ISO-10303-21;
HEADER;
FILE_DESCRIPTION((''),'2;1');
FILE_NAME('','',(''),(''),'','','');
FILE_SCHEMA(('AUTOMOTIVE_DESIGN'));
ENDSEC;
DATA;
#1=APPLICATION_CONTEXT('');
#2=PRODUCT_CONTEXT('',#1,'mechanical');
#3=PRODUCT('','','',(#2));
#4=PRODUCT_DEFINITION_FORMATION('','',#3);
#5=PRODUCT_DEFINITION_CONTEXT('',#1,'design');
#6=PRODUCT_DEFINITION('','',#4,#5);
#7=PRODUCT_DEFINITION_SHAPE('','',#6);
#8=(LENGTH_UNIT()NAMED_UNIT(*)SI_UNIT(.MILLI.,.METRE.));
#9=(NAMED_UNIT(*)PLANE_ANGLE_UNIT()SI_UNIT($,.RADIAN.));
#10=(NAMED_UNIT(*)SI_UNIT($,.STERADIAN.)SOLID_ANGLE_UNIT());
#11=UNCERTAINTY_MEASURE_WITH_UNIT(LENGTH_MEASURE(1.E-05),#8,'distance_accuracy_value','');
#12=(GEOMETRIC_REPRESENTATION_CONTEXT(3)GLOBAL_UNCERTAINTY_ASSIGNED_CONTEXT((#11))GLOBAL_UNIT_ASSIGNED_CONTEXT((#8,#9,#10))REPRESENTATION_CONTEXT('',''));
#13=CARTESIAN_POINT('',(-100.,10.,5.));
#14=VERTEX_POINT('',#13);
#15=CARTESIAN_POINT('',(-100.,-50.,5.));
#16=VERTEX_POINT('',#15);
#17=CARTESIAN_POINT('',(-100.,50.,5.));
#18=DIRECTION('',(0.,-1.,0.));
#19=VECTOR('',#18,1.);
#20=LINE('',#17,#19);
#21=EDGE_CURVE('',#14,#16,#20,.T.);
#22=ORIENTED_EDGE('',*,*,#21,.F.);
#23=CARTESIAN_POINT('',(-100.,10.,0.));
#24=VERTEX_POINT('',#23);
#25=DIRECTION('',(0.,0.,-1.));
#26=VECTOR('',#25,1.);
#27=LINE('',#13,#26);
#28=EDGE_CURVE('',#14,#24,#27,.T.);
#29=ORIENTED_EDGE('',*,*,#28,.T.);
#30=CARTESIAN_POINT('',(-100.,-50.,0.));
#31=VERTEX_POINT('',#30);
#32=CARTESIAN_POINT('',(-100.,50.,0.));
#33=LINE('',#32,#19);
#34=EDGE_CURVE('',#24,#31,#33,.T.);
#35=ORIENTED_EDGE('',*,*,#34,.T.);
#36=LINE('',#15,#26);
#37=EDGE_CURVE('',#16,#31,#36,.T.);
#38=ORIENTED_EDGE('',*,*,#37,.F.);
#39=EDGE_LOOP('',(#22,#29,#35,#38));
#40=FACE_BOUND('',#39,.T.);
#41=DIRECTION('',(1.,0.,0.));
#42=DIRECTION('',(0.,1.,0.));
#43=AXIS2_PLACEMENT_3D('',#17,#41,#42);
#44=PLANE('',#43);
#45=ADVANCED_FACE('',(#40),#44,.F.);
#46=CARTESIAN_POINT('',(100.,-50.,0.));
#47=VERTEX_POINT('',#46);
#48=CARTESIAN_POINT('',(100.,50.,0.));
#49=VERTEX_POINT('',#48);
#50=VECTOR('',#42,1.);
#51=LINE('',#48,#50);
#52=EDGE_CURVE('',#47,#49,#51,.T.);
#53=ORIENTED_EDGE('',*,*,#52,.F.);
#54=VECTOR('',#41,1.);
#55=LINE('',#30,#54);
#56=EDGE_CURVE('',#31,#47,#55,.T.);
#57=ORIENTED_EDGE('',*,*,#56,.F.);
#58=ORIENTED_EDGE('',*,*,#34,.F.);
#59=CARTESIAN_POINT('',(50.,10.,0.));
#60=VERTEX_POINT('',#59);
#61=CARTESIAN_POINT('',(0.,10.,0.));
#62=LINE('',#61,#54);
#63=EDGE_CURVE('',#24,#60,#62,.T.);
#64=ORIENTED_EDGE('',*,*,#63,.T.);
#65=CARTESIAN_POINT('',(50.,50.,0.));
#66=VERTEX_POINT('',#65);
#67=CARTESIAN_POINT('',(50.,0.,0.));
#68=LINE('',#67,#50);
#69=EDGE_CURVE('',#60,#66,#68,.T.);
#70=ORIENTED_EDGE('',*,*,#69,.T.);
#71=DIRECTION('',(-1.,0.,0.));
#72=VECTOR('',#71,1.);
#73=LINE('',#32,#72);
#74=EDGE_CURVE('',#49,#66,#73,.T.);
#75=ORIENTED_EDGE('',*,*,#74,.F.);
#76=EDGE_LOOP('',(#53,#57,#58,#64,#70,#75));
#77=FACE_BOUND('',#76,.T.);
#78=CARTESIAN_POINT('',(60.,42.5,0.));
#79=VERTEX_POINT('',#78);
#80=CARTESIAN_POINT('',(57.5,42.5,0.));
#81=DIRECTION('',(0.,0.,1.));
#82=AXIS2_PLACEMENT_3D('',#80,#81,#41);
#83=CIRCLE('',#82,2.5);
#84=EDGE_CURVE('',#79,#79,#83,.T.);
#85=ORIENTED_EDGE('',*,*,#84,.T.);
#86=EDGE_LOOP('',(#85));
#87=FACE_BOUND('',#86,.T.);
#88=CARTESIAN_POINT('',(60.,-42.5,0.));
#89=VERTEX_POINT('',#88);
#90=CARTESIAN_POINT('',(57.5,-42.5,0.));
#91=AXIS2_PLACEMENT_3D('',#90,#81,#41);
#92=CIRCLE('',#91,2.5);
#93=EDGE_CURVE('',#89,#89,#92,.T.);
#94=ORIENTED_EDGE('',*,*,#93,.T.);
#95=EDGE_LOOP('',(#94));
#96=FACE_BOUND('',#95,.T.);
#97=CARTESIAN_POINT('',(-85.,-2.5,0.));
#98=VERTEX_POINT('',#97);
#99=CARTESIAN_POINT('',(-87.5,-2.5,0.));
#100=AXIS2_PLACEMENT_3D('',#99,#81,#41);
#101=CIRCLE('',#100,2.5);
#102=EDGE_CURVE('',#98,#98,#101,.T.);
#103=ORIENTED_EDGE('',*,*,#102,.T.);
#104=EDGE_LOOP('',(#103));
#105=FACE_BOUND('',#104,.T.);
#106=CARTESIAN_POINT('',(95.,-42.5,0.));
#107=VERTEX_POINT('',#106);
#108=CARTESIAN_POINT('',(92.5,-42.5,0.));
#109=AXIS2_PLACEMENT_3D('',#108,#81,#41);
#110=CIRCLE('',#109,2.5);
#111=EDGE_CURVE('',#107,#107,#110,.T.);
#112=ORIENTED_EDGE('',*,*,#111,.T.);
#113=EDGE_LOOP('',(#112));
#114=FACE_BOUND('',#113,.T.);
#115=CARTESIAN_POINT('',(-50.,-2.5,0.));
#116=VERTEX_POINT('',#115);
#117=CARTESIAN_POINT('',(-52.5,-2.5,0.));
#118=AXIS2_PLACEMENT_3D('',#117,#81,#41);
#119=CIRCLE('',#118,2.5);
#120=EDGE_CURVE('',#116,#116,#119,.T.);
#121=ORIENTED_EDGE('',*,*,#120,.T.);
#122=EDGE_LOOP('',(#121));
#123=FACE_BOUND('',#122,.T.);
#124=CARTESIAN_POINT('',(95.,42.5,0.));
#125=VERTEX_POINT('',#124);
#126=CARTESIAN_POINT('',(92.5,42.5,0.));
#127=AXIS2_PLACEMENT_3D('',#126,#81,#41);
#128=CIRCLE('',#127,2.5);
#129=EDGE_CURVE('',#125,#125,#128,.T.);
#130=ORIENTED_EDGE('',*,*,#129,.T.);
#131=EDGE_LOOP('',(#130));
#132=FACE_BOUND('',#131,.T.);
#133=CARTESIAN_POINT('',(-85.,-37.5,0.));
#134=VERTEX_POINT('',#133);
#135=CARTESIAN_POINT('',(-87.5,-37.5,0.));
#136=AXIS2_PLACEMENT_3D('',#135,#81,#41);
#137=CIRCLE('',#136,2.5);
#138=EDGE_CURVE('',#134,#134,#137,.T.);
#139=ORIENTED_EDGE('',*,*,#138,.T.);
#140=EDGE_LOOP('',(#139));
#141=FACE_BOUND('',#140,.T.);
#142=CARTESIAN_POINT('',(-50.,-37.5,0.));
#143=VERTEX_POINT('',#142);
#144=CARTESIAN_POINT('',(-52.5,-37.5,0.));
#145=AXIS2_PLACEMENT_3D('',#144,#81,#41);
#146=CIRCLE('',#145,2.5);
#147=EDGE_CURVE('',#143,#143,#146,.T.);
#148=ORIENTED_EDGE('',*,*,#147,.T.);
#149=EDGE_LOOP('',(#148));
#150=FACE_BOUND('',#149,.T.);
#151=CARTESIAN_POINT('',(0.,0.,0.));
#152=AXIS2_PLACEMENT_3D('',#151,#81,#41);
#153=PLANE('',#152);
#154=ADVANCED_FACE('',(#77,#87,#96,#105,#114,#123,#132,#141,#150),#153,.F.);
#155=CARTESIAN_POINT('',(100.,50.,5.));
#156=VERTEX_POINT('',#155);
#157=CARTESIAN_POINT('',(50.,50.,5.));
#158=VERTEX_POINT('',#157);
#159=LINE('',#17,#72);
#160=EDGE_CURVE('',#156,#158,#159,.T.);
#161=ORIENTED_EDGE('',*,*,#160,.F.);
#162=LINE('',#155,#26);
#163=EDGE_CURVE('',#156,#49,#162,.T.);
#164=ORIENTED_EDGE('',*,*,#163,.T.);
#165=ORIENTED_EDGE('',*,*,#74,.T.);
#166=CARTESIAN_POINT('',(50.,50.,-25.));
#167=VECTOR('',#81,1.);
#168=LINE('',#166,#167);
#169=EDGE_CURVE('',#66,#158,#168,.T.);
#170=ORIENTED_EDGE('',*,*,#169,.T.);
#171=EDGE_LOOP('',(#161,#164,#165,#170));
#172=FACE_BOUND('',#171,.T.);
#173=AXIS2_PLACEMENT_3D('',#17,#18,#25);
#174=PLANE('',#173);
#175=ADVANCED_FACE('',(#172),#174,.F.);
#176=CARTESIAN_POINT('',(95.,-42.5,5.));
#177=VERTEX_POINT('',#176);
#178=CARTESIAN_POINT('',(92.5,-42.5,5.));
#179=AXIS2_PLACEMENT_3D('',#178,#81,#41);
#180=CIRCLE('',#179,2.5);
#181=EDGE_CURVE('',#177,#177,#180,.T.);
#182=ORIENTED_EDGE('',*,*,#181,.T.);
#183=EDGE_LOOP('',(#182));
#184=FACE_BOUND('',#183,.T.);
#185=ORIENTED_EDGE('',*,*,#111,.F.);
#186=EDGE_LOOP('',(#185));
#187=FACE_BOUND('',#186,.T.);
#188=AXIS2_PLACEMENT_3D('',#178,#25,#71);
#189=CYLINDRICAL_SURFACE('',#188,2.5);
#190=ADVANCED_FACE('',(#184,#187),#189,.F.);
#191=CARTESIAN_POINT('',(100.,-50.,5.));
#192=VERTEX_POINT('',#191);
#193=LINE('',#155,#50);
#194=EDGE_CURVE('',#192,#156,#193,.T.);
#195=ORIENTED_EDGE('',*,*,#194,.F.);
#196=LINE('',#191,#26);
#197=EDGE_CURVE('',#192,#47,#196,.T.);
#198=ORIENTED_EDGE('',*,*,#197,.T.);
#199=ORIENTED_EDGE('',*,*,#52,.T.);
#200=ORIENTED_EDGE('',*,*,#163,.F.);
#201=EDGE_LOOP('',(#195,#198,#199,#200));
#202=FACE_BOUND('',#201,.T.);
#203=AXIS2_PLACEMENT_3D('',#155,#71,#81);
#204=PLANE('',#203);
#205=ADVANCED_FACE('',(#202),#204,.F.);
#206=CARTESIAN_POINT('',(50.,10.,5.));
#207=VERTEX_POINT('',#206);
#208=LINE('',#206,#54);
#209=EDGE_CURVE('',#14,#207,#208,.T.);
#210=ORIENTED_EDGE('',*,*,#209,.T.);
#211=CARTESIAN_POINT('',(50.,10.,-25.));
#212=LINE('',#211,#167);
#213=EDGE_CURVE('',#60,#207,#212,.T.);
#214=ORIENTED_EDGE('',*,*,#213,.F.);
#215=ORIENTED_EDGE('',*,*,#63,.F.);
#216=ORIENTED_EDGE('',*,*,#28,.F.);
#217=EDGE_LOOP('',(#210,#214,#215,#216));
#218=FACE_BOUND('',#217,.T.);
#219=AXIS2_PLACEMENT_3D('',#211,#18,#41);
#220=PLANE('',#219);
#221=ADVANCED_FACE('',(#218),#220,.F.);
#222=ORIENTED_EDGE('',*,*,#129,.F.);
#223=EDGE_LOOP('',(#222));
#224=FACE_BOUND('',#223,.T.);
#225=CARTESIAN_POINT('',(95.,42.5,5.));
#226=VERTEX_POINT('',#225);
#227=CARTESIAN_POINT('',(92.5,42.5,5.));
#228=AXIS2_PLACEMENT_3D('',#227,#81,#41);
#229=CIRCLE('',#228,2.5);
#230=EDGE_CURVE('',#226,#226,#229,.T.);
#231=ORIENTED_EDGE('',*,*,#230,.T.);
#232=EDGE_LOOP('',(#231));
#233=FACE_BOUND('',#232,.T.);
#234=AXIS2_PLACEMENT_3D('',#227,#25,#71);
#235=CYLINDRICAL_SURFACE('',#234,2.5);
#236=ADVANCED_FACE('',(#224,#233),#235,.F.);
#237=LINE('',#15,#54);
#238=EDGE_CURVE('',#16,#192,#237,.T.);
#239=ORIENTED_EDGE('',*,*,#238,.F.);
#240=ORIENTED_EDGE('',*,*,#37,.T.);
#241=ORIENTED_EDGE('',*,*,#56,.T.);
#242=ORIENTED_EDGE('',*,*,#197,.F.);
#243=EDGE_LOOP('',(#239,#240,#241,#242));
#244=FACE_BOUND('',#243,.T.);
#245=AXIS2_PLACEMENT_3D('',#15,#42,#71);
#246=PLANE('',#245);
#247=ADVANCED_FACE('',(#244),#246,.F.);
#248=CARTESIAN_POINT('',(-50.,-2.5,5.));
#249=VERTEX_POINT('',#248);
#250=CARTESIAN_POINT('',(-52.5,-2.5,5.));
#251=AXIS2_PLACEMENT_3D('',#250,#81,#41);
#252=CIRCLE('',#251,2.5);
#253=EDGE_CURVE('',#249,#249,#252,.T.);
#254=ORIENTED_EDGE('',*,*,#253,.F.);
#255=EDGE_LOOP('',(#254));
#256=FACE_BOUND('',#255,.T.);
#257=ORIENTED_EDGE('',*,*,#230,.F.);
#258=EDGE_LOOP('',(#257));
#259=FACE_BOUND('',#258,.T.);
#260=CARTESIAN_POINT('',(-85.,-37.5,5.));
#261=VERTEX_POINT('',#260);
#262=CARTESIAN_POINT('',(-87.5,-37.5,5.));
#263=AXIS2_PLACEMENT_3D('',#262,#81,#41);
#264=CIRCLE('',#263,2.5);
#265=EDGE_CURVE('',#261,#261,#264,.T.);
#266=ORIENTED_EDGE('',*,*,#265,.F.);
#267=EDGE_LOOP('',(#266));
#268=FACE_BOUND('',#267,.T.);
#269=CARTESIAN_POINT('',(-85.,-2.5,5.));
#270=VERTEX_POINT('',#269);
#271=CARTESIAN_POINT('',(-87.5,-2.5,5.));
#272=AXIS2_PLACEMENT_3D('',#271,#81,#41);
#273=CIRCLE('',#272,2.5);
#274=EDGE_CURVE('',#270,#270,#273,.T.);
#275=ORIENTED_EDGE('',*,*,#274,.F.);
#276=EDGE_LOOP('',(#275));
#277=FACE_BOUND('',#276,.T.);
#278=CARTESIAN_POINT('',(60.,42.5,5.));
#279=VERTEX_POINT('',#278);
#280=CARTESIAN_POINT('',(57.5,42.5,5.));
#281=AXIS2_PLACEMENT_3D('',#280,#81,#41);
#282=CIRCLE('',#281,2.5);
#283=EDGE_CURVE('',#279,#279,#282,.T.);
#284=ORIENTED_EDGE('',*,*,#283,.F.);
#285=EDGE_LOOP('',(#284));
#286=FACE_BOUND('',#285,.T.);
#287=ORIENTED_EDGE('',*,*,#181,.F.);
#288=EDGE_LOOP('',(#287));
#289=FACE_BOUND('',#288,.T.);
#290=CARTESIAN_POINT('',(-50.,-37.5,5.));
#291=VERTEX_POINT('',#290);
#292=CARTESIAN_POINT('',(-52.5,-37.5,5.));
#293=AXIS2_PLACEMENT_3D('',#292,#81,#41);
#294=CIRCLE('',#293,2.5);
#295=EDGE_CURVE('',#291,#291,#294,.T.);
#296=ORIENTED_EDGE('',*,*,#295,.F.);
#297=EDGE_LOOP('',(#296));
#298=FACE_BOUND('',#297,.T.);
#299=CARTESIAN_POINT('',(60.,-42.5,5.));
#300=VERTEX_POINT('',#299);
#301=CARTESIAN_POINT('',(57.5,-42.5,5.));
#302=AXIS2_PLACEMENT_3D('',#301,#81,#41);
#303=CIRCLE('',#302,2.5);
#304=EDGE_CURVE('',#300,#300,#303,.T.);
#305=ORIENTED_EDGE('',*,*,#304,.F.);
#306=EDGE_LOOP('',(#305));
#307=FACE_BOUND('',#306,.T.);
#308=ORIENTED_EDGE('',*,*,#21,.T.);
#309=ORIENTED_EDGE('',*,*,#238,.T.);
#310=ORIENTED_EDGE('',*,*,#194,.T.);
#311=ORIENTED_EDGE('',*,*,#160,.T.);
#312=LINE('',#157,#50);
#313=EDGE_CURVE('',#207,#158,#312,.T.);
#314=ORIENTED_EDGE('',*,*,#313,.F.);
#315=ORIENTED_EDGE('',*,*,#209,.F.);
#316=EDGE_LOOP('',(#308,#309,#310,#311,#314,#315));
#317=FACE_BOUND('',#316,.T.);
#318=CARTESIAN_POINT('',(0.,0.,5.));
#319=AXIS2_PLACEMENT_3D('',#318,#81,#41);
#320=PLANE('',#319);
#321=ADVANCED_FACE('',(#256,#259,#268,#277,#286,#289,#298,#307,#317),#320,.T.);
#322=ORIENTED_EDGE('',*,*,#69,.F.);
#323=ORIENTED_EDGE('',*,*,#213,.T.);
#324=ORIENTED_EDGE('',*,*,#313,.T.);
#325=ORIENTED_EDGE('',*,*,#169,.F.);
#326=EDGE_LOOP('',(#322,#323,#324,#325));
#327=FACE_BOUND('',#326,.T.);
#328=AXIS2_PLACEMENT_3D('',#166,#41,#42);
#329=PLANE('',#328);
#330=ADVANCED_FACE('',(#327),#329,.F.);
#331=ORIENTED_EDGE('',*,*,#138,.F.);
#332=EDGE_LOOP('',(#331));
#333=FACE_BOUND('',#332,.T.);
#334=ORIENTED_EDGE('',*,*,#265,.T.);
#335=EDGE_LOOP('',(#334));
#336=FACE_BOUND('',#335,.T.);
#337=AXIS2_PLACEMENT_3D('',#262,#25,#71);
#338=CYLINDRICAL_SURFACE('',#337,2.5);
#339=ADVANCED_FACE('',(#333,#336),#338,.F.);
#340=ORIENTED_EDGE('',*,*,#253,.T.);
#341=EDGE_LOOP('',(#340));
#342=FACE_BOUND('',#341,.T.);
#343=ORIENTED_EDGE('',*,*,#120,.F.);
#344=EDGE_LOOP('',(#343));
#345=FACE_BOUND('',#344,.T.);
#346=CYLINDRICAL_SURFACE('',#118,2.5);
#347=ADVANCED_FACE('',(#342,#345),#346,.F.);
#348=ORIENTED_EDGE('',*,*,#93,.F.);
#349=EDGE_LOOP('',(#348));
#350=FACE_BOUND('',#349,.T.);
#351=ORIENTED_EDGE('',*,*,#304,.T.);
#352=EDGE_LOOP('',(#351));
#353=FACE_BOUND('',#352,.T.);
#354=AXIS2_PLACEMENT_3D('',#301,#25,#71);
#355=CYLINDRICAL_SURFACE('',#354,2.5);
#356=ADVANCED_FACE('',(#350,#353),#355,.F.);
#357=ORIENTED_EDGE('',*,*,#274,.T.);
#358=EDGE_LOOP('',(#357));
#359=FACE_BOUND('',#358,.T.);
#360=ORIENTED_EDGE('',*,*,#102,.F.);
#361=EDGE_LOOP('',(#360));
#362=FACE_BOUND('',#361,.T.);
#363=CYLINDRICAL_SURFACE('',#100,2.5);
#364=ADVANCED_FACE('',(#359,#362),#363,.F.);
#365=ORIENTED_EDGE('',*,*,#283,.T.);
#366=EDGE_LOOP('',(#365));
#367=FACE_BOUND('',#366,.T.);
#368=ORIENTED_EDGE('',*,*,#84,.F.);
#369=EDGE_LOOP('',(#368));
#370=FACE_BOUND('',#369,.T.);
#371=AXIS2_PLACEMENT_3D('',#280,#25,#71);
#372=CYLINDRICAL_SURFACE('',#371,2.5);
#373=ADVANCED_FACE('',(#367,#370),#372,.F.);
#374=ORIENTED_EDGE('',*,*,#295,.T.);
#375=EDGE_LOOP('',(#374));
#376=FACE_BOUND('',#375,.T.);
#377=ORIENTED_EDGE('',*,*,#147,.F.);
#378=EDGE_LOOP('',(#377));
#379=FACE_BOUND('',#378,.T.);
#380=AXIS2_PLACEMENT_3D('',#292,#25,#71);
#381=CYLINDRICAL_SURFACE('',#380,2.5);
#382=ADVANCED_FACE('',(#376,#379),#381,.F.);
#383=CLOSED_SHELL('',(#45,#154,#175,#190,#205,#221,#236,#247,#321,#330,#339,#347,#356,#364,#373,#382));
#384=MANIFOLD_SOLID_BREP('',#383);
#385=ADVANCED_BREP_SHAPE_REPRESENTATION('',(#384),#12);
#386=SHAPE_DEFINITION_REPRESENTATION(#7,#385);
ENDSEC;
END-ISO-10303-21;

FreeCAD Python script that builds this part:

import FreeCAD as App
import Part
import Sketcher
Q = App.Units.Quantity


def add_polygon(sketch, points):
    """Adds a closed chain of lines whose ends are joined by coincident constraints."""
    first, n = sketch.GeometryCount, len(points)
    for a, b in zip(points, points[1:] + points[:1]):
        sketch.addGeometry(Part.LineSegment(App.Vector(*a, 0), App.Vector(*b, 0)), False)
    for i in range(n):
        sketch.addConstraint(Sketcher.Constraint("Coincident", first + i, 2, first + (i + 1) % n, 1))

doc = App.newDocument("Part")
body = doc.addObject("PartDesign::Body", "Body")

sketch1 = body.newObject("Sketcher::SketchObject", "Sketch")
sketch1.AttachmentSupport = (doc.getObject("XY_Plane"), [""])
sketch1.MapMode = "FlatFace"
add_polygon(sketch1, [(-100, 50), (-100, -50), (100, -50), (100, 50)])
sketch1.addGeometry(Part.Circle(App.Vector(-87.5, -37.5, 0), App.Vector(0, 0, 1), 2.5), False)
sketch1.addGeometry(Part.Circle(App.Vector(-52.5, -37.5, 0), App.Vector(0, 0, 1), 2.5), False)
sketch1.addGeometry(Part.Circle(App.Vector(57.5, -42.5, 0), App.Vector(0, 0, 1), 2.5), False)
sketch1.addGeometry(Part.Circle(App.Vector(92.5, -42.5, 0), App.Vector(0, 0, 1), 2.5), False)
sketch1.addGeometry(Part.Circle(App.Vector(-92.5, 42.5, 0), App.Vector(0, 0, 1), 2.5), False)
sketch1.addGeometry(Part.Circle(App.Vector(-57.5, 42.5, 0), App.Vector(0, 0, 1), 2.5), False)
sketch1.addGeometry(Part.Circle(App.Vector(57.5, 42.5, 0), App.Vector(0, 0, 1), 2.5), False)
sketch1.addGeometry(Part.Circle(App.Vector(92.5, 42.5, 0), App.Vector(0, 0, 1), 2.5), False)
sketch1.addConstraint([
    Sketcher.Constraint("Vertical", 0),
    Sketcher.Constraint("Horizontal", 1),
    Sketcher.Constraint("Vertical", 2),
    Sketcher.Constraint("Horizontal", 3),
    Sketcher.Constraint("Equal", 4, 5),
    Sketcher.Constraint("Equal", 5, 6),
    Sketcher.Constraint("Equal", 6, 7),
    Sketcher.Constraint("Equal", 7, 8),
    Sketcher.Constraint("Equal", 8, 9),
    Sketcher.Constraint("Equal", 9, 10),
    Sketcher.Constraint("Equal", 10, 11),
    Sketcher.Constraint("Symmetric", 7, 3, 8, 3, -1, 1),
    Sketcher.Constraint("Symmetric", 6, 3, 9, 3, -1, 1),
    Sketcher.Constraint("Symmetric", 0, 2, 2, 2, -1, 1),
    Sketcher.Constraint("Symmetric", 9, 3, 10, 3, -2),
    Sketcher.Constraint("Symmetric", 8, 3, 11, 3, -2),
    Sketcher.Constraint("Horizontal", 4, 3, 5, 3),
    Sketcher.Constraint("Horizontal", 6, 3, 7, 3),
    Sketcher.Constraint("Diameter", 4, Q("5 mm")),
    Sketcher.Constraint("DistanceX", 1, 1, 1, 2, Q("200 mm")),
    Sketcher.Constraint("DistanceY", 0, 2, 0, 1, Q("100 mm")),
    Sketcher.Constraint("DistanceX", 4, 3, 5, 3, Q("35 mm")),
    Sketcher.Constraint("DistanceX", 5, 3, 6, 3, Q("110 mm")),
    Sketcher.Constraint("DistanceY", 6, 3, 5, 3, Q("5 mm")),
    Sketcher.Constraint("DistanceX", 6, 3, 7, 3, Q("35 mm")),
    Sketcher.Constraint("DistanceX", 8, 3, 4, 3, Q("5 mm")),
    Sketcher.Constraint("DistanceY", 4, 3, 8, 3, Q("80 mm")),
])
pad1 = body.newObject("PartDesign::Pad", "Pad")
pad1.Profile = sketch1
pad1.Length = 5

sketch2 = body.newObject("Sketcher::SketchObject", "Sketch001")
sketch2.AttachmentSupport = (doc.getObject("XY_Plane"), [""])
sketch2.MapMode = "FlatFace"
sketch2.AttachmentOffset = App.Placement(App.Vector(0, 0, 5), App.Rotation())
sketch2.addGeometry([
    Part.Circle(App.Vector(-87.5, -2.5, 0), App.Vector(0, 0, 1), 2.5),
    Part.Circle(App.Vector(-52.5, -2.5, 0), App.Vector(0, 0, 1), 2.5),
    Part.Circle(App.Vector(-87.5, -37.5, 0), App.Vector(0, 0, 1), 2.5),
    Part.Circle(App.Vector(-52.5, -37.5, 0), App.Vector(0, 0, 1), 2.5),
], False)
sketch2.addConstraint([
    Sketcher.Constraint("Equal", 0, 1),
    Sketcher.Constraint("Equal", 1, 2),
    Sketcher.Constraint("Equal", 2, 3),
    Sketcher.Constraint("Horizontal", 0, 3, 1, 3),
    Sketcher.Constraint("Horizontal", 2, 3, 3, 3),
    Sketcher.Constraint("Vertical", 0, 3, 2, 3),
    Sketcher.Constraint("Vertical", 1, 3, 3, 3),
    Sketcher.Constraint("Diameter", 0, Q("5 mm")),
    Sketcher.Constraint("DistanceX", 0, 3, 1, 3, Q("35 mm")),
    Sketcher.Constraint("DistanceY", 2, 3, 0, 3, Q("35 mm")),
    Sketcher.Constraint("DistanceX", 0, 3, -1, 1, Q("87.5 mm")),
    Sketcher.Constraint("DistanceY", 0, 3, -1, 1, Q("2.5 mm")),
])
pocket1 = body.newObject("PartDesign::Pocket", "Pocket")
pocket1.Profile = sketch2
pocket1.Length = 5

sketch3 = body.newObject("Sketcher::SketchObject", "Sketch002")
sketch3.AttachmentSupport = (doc.getObject("XY_Plane"), [""])
sketch3.MapMode = "FlatFace"
sketch3.AttachmentOffset = App.Placement(App.Vector(0, 0, 5), App.Rotation())
add_polygon(sketch3, [(-100, 50), (-100, 10), (50, 10), (50, 50)])
sketch3.addConstraint([
    Sketcher.Constraint("Vertical", 0),
    Sketcher.Constraint("Horizontal", 1),
    Sketcher.Constraint("Vertical", 2),
    Sketcher.Constraint("Horizontal", 3),
    Sketcher.Constraint("DistanceX", 1, 1, 1, 2, Q("150 mm")),
    Sketcher.Constraint("DistanceY", 0, 2, 0, 1, Q("40 mm")),
    Sketcher.Constraint("DistanceX", 0, 2, -1, 1, Q("100 mm")),
    Sketcher.Constraint("DistanceY", -1, 1, 0, 2, Q("10 mm")),
])
pocket2 = body.newObject("PartDesign::Pocket", "Pocket001")
pocket2.Profile = sketch3
pocket2.Length = 30

doc.recompute()
